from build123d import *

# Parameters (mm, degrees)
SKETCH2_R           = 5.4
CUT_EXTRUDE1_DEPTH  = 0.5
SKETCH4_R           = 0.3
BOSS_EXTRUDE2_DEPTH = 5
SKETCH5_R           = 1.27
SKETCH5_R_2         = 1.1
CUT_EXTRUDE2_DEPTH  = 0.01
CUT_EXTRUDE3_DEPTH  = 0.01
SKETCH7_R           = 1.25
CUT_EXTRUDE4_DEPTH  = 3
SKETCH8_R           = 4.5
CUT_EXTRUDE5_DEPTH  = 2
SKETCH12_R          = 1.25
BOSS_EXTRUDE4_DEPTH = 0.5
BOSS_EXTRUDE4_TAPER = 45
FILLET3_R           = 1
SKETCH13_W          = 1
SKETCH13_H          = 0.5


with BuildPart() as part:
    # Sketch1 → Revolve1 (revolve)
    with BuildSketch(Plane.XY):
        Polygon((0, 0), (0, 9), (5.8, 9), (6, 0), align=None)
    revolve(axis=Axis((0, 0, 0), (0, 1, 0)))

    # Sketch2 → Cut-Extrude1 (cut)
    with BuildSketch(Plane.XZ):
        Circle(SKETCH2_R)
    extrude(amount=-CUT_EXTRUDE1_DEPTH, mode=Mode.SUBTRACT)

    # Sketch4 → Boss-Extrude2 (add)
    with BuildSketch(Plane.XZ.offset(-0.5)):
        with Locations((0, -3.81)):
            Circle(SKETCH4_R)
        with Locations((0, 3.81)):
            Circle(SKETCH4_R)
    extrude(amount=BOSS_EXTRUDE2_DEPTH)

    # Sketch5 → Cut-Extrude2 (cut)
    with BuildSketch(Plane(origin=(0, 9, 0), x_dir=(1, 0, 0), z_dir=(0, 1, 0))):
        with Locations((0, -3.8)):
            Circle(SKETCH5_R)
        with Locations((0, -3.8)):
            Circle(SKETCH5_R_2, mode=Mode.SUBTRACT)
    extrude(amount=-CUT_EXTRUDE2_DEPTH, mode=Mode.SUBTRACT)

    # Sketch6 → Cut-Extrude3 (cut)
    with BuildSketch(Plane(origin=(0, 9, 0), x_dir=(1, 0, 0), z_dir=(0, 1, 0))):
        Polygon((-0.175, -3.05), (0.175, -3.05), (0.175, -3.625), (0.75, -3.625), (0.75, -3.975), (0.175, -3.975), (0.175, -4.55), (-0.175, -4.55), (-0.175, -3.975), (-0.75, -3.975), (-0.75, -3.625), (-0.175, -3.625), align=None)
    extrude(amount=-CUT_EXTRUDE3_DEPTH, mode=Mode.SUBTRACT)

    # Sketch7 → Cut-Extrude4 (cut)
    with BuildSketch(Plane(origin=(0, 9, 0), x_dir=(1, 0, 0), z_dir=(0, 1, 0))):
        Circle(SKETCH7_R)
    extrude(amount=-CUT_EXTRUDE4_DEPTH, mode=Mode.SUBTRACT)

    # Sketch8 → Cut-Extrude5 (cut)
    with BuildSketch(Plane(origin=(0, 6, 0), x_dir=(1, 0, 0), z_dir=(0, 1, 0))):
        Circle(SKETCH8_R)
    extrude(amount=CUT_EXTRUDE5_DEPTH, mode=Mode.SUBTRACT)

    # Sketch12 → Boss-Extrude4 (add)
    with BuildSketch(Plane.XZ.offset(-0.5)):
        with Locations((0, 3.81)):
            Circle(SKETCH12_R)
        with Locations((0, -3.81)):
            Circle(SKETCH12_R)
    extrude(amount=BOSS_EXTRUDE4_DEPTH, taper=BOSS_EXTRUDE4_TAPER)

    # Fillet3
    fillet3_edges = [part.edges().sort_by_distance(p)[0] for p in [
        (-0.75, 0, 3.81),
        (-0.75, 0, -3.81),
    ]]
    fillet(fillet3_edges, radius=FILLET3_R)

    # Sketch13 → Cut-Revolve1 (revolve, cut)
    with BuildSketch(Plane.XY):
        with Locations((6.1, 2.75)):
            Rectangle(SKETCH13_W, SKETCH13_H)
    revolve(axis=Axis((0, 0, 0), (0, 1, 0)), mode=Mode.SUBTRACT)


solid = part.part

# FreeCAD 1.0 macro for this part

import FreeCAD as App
import Part
import Sketcher
Q = App.Units.Quantity


def edges_at(feature, points):
    """Names of the edges that pass closest to the given points."""
    edges = feature.Shape.Edges
    near = lambda p: min(range(len(edges)), key=lambda i: edges[i].distToShape(Part.Vertex(*p))[0])
    return sorted({f"Edge{near(p) + 1}" for p in points})


def add_polygon(sketch, points):
    """Adds a closed chain of lines whose ends are joined by coincident constraints."""
    first, n = sketch.GeometryCount, len(points)
    for a, b in zip(points, points[1:] + points[:1]):
        sketch.addGeometry(Part.LineSegment(App.Vector(*a, 0), App.Vector(*b, 0)), False)
    for i in range(n):
        sketch.addConstraint(Sketcher.Constraint("Coincident", first + i, 2, first + (i + 1) % n, 1))

doc = App.newDocument("Part")
body = doc.addObject("PartDesign::Body", "Body")

# Sketch on XY plane
sketch1 = body.newObject("Sketcher::SketchObject", "Sketch")
sketch1.AttachmentSupport = (doc.getObject("XY_Plane"), [""])
sketch1.MapMode = "FlatFace"
add_polygon(sketch1, [(0, 9), (0, 0), (6, 0), (6, 9)])  # lines 0-3
sketch1.addConstraint([
    Sketcher.Constraint("Vertical", 0),
    Sketcher.Constraint("Horizontal", 1),
    Sketcher.Constraint("Horizontal", 3),
    Sketcher.Constraint("Coincident", 0, 2, -1, 1),
    Sketcher.Constraint("DistanceX", 1, 1, 1, 2, Q("6 mm")),
    Sketcher.Constraint("DistanceY", 0, 2, 0, 1, Q("9 mm")),
    Sketcher.Constraint("DistanceX", 3, 2, 3, 1, Q("5.8 mm")),
])
revolution = body.newObject("PartDesign::Revolution", "Revolution")
revolution.Profile = sketch1
revolution.ReferenceAxis = (sketch1, ["V_Axis"])
revolution.Angle = 360

# Sketch on XZ plane
sketch2 = body.newObject("Sketcher::SketchObject", "Sketch001")
sketch2.AttachmentSupport = (doc.getObject("XZ_Plane"), [""])
sketch2.MapMode = "FlatFace"
sketch2.addGeometry(Part.Circle(App.Vector(0, 0, 0), App.Vector(0, 0, 1), 5), False)
sketch2.addConstraint([
    Sketcher.Constraint("Coincident", 0, 3, -1, 1),
    Sketcher.Constraint("Diameter", 0, Q("10.8 mm")),
])
pocket1 = body.newObject("PartDesign::Pocket", "Pocket")
pocket1.Profile = sketch2
pocket1.Length = 0.5

# Sketch on XZ plane
sketch3 = body.newObject("Sketcher::SketchObject", "Sketch002")
sketch3.AttachmentSupport = (doc.getObject("XZ_Plane"), [""])
sketch3.MapMode = "FlatFace"
sketch3.AttachmentOffset = App.Placement(App.Vector(0, 0, -0.5), App.Rotation())
sketch3.addGeometry([
    Part.Circle(App.Vector(0, -3.81, 0), App.Vector(0, 0, 1), 0.3),
    Part.Circle(App.Vector(0, 3.81, 0), App.Vector(0, 0, 1), 0.3),
], False)
sketch3.addConstraint([
    Sketcher.Constraint("Equal", 0, 1),
    Sketcher.Constraint("Symmetric", 0, 3, 1, 3, -1, 1),
    Sketcher.Constraint("PointOnObject", 0, 3, -2),
    Sketcher.Constraint("Diameter", 0, Q("0.6 mm")),
    Sketcher.Constraint("DistanceY", 0, 3, -1, 1, Q("3.81 mm")),
])
pad1 = body.newObject("PartDesign::Pad", "Pad")
pad1.Profile = sketch3
pad1.Length = 5

# Sketch on XZ plane
sketch4 = body.newObject("Sketcher::SketchObject", "Sketch003")
sketch4.AttachmentSupport = (doc.getObject("XZ_Plane"), [""])
sketch4.MapMode = "FlatFace"
sketch4.AttachmentOffset = App.Placement(App.Vector(0, 0, -9), App.Rotation())
sketch4.addGeometry([
    Part.Circle(App.Vector(0, 3.8, 0), App.Vector(0, 0, 1), 1.3),
    Part.Circle(App.Vector(0, 3.8, 0), App.Vector(0, 0, 1), 1.1),
], False)
sketch4.addConstraint([
    Sketcher.Constraint("Coincident", 1, 3, 0, 3),
    Sketcher.Constraint("PointOnObject", 0, 3, -2),
    Sketcher.Constraint("Diameter", 1, Q("2.2 mm")),
    Sketcher.Constraint("Diameter", 0, Q("2.54 mm")),
    Sketcher.Constraint("DistanceY", -1, 1, 0, 3, Q("3.8 mm")),
])
pocket2 = body.newObject("PartDesign::Pocket", "Pocket001")
pocket2.Profile = sketch4
pocket2.Length = 0.01
pocket2.Reversed = True

# Sketch on XZ plane
sketch5 = body.newObject("Sketcher::SketchObject", "Sketch004")
sketch5.AttachmentSupport = (doc.getObject("XZ_Plane"), [""])
sketch5.MapMode = "FlatFace"
sketch5.AttachmentOffset = App.Placement(App.Vector(0, 0, -9), App.Rotation())
add_polygon(sketch5, [(0.17, 3.05), (-0.17, 3.05), (-0.17, 3.62), (-0.75, 3.62), (-0.75, 3.98), (-0.17, 3.98), (-0.17, 4.55), (0.17, 4.55), (0.17, 3.98), (0.75, 3.98), (0.75, 3.62), (0.17, 3.62)])  # lines 0-11
sketch5.addConstraint([
    Sketcher.Constraint("Horizontal", 0),
    Sketcher.Constraint("Vertical", 1),
    Sketcher.Constraint("Horizontal", 2),
    Sketcher.Constraint("Vertical", 3),
    Sketcher.Constraint("Horizontal", 4),
    Sketcher.Constraint("Vertical", 5),
    Sketcher.Constraint("Horizontal", 6),
    Sketcher.Constraint("Vertical", 7),
    Sketcher.Constraint("Horizontal", 8),
    Sketcher.Constraint("Vertical", 9),
    Sketcher.Constraint("Horizontal", 10),
    Sketcher.Constraint("Vertical", 11),
    Sketcher.Constraint("Symmetric", 4, 2, 7, 2, -2),
    Sketcher.Constraint("Symmetric", 2, 2, 9, 2, -2),
    Sketcher.Constraint("Vertical", 1, 2, 4, 2),
    Sketcher.Constraint("Vertical", 7, 2, 10, 2),
    Sketcher.Constraint("Equal", 10, 1),
    Sketcher.Constraint("Equal", 6, 3),
    Sketcher.Constraint("Equal", 1, 5),
    Sketcher.Constraint("DistanceX", 0, 2, 0, 1, Q("0.35 mm")),
    Sketcher.Constraint("DistanceY", 0, 2, 5, 2, Q("1.5 mm")),
    Sketcher.Constraint("DistanceY", -1, 1, 0, 2, Q("3.05 mm")),
])
pocket3 = body.newObject("PartDesign::Pocket", "Pocket002")
pocket3.Profile = sketch5
pocket3.Length = 0.01
pocket3.Reversed = True

# Sketch on XZ plane
sketch6 = body.newObject("Sketcher::SketchObject", "Sketch005")
sketch6.AttachmentSupport = (doc.getObject("XZ_Plane"), [""])
sketch6.MapMode = "FlatFace"
sketch6.AttachmentOffset = App.Placement(App.Vector(0, 0, -9), App.Rotation())
sketch6.addGeometry(Part.Circle(App.Vector(0, 0, 0), App.Vector(0, 0, 1), 1.2), False)
sketch6.addConstraint([
    Sketcher.Constraint("Coincident", 0, 3, -1, 1),
    Sketcher.Constraint("Diameter", 0, Q("2.5 mm")),
])
pocket4 = body.newObject("PartDesign::Pocket", "Pocket003")
pocket4.Profile = sketch6
pocket4.Length = 3
pocket4.Reversed = True

# Sketch on XZ plane
sketch7 = body.newObject("Sketcher::SketchObject", "Sketch006")
sketch7.AttachmentSupport = (doc.getObject("XZ_Plane"), [""])
sketch7.MapMode = "FlatFace"
sketch7.AttachmentOffset = App.Placement(App.Vector(0, 0, -6), App.Rotation())
sketch7.addGeometry(Part.Circle(App.Vector(0, 0, 0), App.Vector(0, 0, 1), 4.5), False)
sketch7.addConstraint([
    Sketcher.Constraint("Coincident", 0, 3, -1, 1),
    Sketcher.Constraint("Diameter", 0, Q("9 mm")),
])
pocket5 = body.newObject("PartDesign::Pocket", "Pocket004")
pocket5.Profile = sketch7
pocket5.Length = 2

# Sketch on XZ plane
sketch8 = body.newObject("Sketcher::SketchObject", "Sketch007")
sketch8.AttachmentSupport = (doc.getObject("XZ_Plane"), [""])
sketch8.MapMode = "FlatFace"
sketch8.AttachmentOffset = App.Placement(App.Vector(0, 0, -0.5), App.Rotation())
sketch8.addGeometry([
    Part.Circle(App.Vector(0, 3.8, 0), App.Vector(0, 0, 1), 1.2),
    Part.Circle(App.Vector(0, -3.8, 0), App.Vector(0, 0, 1), 1.2),
], False)
sketch8.addConstraint([
    Sketcher.Constraint("Equal", 0, 1),
    Sketcher.Constraint("Symmetric", 0, 3, 1, 3, -1, 1),
    Sketcher.Constraint("PointOnObject", 0, 3, -2),
    Sketcher.Constraint("Diameter", 0, Q("2.5 mm")),
    Sketcher.Constraint("DistanceY", -1, 1, 0, 3, Q("3.81 mm")),
])
pad2 = body.newObject("PartDesign::Pad", "Pad001")
pad2.Profile = sketch8
pad2.Length = 0.5
pad2.TaperAngle = -45
doc.recompute()

fillet = body.newObject("PartDesign::Fillet", "Fillet")
fillet.Base = (pad2, edges_at(pad2, [(-0.75, 0, 3.81), (-0.75, 0, -3.81)]))
fillet.Radius = 1

# Sketch on XY plane
sketch9 = body.newObject("Sketcher::SketchObject", "Sketch008")
sketch9.AttachmentSupport = (doc.getObject("XY_Plane"), [""])
sketch9.MapMode = "FlatFace"
add_polygon(sketch9, [(5.6, 3), (5.6, 2.5), (6.6, 2.5), (6.6, 3)])  # lines 0-3
sketch9.addConstraint([
    Sketcher.Constraint("Vertical", 0),
    Sketcher.Constraint("Horizontal", 1),
    Sketcher.Constraint("Vertical", 2),
    Sketcher.Constraint("Horizontal", 3),
    Sketcher.Constraint("DistanceX", 1, 1, 1, 2, Q("1 mm")),
    Sketcher.Constraint("DistanceY", 0, 2, 0, 1, Q("0.5 mm")),
    Sketcher.Constraint("DistanceY", -1, 1, 2, 2, Q("3 mm")),
    Sketcher.Constraint("DistanceX", -1, 1, 0, 2, Q("5.6 mm")),
])
groove = body.newObject("PartDesign::Groove", "Groove")
groove.Profile = sketch9
groove.ReferenceAxis = (sketch9, ["V_Axis"])
groove.Angle = 360

doc.recompute()
